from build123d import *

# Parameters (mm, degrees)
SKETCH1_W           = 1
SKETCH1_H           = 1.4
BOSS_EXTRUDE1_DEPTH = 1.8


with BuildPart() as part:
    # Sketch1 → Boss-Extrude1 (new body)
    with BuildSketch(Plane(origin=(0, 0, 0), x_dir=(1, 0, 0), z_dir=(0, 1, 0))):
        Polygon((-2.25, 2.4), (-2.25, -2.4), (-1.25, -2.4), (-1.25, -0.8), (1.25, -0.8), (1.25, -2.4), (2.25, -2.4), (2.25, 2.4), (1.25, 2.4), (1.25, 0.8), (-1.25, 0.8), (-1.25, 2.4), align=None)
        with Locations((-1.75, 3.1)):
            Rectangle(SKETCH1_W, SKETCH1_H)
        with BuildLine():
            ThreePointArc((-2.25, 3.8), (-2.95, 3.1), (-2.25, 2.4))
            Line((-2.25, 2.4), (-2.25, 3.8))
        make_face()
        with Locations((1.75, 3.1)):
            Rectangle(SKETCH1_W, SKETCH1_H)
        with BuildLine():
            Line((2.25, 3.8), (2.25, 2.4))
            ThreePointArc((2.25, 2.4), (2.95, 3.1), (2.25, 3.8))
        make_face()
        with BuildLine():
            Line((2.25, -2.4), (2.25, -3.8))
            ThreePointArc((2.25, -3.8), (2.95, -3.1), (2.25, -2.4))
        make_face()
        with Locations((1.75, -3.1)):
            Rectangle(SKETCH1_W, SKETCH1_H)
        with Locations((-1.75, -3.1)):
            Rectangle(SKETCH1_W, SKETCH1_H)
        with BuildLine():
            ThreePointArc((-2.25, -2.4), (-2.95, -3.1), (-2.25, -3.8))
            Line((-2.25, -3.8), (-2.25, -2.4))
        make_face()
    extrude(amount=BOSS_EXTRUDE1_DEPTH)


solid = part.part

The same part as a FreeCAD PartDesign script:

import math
import FreeCAD as App
import Part
import Sketcher
from FreeCAD import Vector
Q = App.Units.Quantity

doc = App.newDocument("Part")
body = doc.addObject("PartDesign::Body", "Body")

sketch1 = body.newObject("Sketcher::SketchObject", "Sketch")
sketch1.AttachmentSupport = (doc.getObject("XZ_Plane"), [""])
sketch1.MapMode = "FlatFace"
sketch1.addGeometry(Part.LineSegment(Vector(-1.2, 0.8, 0), Vector(1.2, 0.8, 0)), False)
sketch1.addGeometry(Part.LineSegment(Vector(1.2, 0.8, 0), Vector(1.2, 3.8, 0)), False)
sketch1.addGeometry(Part.LineSegment(Vector(1.2, 3.8, 0), Vector(2.2, 3.8, 0)), False)
sketch1.addGeometry(Part.ArcOfCircle(Part.Circle(Vector(2.2, 3.1, 0), Vector(0, 0, 1), 0.7), math.radians(-90), math.radians(90)), False)
sketch1.addGeometry(Part.LineSegment(Vector(2.2, 2.4, 0), Vector(2.2, -2.4, 0)), False)
sketch1.addGeometry(Part.ArcOfCircle(Part.Circle(Vector(2.2, -3.1, 0), Vector(0, 0, 1), 0.7), math.radians(-90), math.radians(90)), False)
sketch1.addGeometry(Part.LineSegment(Vector(2.2, -3.8, 0), Vector(1.2, -3.8, 0)), False)
sketch1.addGeometry(Part.LineSegment(Vector(1.2, -3.8, 0), Vector(1.2, -0.8, 0)), False)
sketch1.addGeometry(Part.LineSegment(Vector(1.2, -0.8, 0), Vector(-1.2, -0.8, 0)), False)
sketch1.addGeometry(Part.LineSegment(Vector(-1.2, -0.8, 0), Vector(-1.2, -3.8, 0)), False)
sketch1.addGeometry(Part.LineSegment(Vector(-1.2, -3.8, 0), Vector(-2.2, -3.8, 0)), False)
sketch1.addGeometry(Part.ArcOfCircle(Part.Circle(Vector(-2.2, -3.1, 0), Vector(0, 0, 1), 0.7), math.radians(90), math.radians(270)), False)
sketch1.addGeometry(Part.LineSegment(Vector(-2.2, -2.4, 0), Vector(-2.2, 2.4, 0)), False)
sketch1.addGeometry(Part.ArcOfCircle(Part.Circle(Vector(-2.2, 3.1, 0), Vector(0, 0, 1), 0.7), math.radians(90), math.radians(270)), False)
sketch1.addGeometry(Part.LineSegment(Vector(-2.2, 3.8, 0), Vector(-1.2, 3.8, 0)), False)
sketch1.addGeometry(Part.LineSegment(Vector(-1.2, 3.8, 0), Vector(-1.2, 0.8, 0)), False)
sketch1.addConstraint(Sketcher.Constraint("Coincident", 0, 2, 1, 1))
sketch1.addConstraint(Sketcher.Constraint("Coincident", 1, 2, 2, 1))
sketch1.addConstraint(Sketcher.Constraint("Tangent", 2, 2, 3, 2))
sketch1.addConstraint(Sketcher.Constraint("Coincident", 3, 1, 4, 1))
sketch1.addConstraint(Sketcher.Constraint("Coincident", 4, 2, 5, 2))
sketch1.addConstraint(Sketcher.Constraint("Tangent", 5, 1, 6, 1))
sketch1.addConstraint(Sketcher.Constraint("Coincident", 6, 2, 7, 1))
sketch1.addConstraint(Sketcher.Constraint("Coincident", 7, 2, 8, 1))
sketch1.addConstraint(Sketcher.Constraint("Coincident", 8, 2, 9, 1))
sketch1.addConstraint(Sketcher.Constraint("Coincident", 9, 2, 10, 1))
sketch1.addConstraint(Sketcher.Constraint("Tangent", 10, 2, 11, 2))
sketch1.addConstraint(Sketcher.Constraint("Coincident", 11, 1, 12, 1))
sketch1.addConstraint(Sketcher.Constraint("Coincident", 12, 2, 13, 2))
sketch1.addConstraint(Sketcher.Constraint("Tangent", 13, 1, 14, 1))
sketch1.addConstraint(Sketcher.Constraint("Coincident", 14, 2, 15, 1))
sketch1.addConstraint(Sketcher.Constraint("Coincident", 15, 2, 0, 1))
sketch1.addConstraint(Sketcher.Constraint("Horizontal", 0))
sketch1.addConstraint(Sketcher.Constraint("Vertical", 1))
sketch1.addConstraint(Sketcher.Constraint("Horizontal", 2))
sketch1.addConstraint(Sketcher.Constraint("Vertical", 4))
sketch1.addConstraint(Sketcher.Constraint("Horizontal", 6))
sketch1.addConstraint(Sketcher.Constraint("Vertical", 7))
sketch1.addConstraint(Sketcher.Constraint("Horizontal", 8))
sketch1.addConstraint(Sketcher.Constraint("Vertical", 9))
sketch1.addConstraint(Sketcher.Constraint("Horizontal", 10))
sketch1.addConstraint(Sketcher.Constraint("Vertical", 12))
sketch1.addConstraint(Sketcher.Constraint("Horizontal", 14))
sketch1.addConstraint(Sketcher.Constraint("Vertical", 15))
sketch1.addConstraint(Sketcher.Constraint("Equal", 3, 5))
sketch1.addConstraint(Sketcher.Constraint("Equal", 5, 11))
sketch1.addConstraint(Sketcher.Constraint("Equal", 11, 13))
sketch1.addConstraint(Sketcher.Constraint("Symmetric", 3, 3, 11, 3, -1, 1))
sketch1.addConstraint(Sketcher.Constraint("Symmetric", 5, 3, 13, 3, -1, 1))
sketch1.addConstraint(Sketcher.Constraint("Symmetric", 0, 2, 8, 2, -1, 1))
sketch1.addConstraint(Sketcher.Constraint("Symmetric", 5, 3, 11, 3, -2))
sketch1.addConstraint(Sketcher.Constraint("Vertical", 2, 2, 3, 1))
sketch1.addConstraint(Sketcher.Constraint("Vertical", 1, 2, 6, 2))
sketch1.addConstraint(Sketcher.Constraint("Vertical", 10, 2, 11, 1))
sketch1.addConstraint(Sketcher.Constraint("Vertical", 9, 2, 14, 2))
sketch1.addConstraint(Sketcher.Constraint("Radius", 3, Q("0.7 mm")))
sketch1.addConstraint(Sketcher.Constraint("DistanceX", 2, 1, 2, 2, Q("1 mm")))
sketch1.addConstraint(Sketcher.Constraint("DistanceY", 1, 1, 1, 2, Q("3 mm")))
sketch1.addConstraint(Sketcher.Constraint("DistanceX", 0, 1, 0, 2, Q("2.5 mm")))
sketch1.addConstraint(Sketcher.Constraint("DistanceY", 4, 2, 4, 1, Q("4.8 mm")))
pad1 = body.newObject("PartDesign::Pad", "Pad")
pad1.Profile = sketch1
pad1.Length = 1.8
pad1.Reversed = True

doc.recompute()
